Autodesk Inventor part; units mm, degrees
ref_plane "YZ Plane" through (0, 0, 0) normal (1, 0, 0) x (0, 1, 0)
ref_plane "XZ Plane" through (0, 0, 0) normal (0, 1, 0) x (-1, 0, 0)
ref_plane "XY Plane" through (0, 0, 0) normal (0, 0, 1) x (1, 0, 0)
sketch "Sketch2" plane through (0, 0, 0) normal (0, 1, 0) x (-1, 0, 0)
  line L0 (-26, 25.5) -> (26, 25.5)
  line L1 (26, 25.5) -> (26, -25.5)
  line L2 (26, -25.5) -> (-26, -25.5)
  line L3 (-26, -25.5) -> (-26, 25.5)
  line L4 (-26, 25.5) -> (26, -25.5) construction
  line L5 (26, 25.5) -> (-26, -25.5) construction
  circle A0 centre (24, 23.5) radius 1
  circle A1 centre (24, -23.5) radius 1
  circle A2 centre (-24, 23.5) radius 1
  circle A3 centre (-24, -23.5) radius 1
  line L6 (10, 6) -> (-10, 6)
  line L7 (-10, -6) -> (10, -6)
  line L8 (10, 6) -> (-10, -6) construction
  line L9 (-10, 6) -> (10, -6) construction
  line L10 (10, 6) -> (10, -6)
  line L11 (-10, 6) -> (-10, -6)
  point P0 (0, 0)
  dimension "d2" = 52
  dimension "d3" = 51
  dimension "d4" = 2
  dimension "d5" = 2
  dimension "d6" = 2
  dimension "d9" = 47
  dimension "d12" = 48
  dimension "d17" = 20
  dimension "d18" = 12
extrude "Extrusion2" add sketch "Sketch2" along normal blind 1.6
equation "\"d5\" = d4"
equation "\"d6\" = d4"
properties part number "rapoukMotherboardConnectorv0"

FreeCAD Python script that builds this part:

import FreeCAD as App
import Part
import Sketcher
Q = App.Units.Quantity

doc = App.newDocument("Part")
body = doc.addObject("PartDesign::Body", "Body")

# Sketch on XZ plane
sketch1 = body.newObject("Sketcher::SketchObject", "Sketch")
sketch1.AttachmentSupport = (doc.getObject("XZ_Plane"), [""])
sketch1.MapMode = "FlatFace"
sketch1.addGeometry(Part.LineSegment(App.Vector(-26, 25.5, 0), App.Vector(26, 25.5, 0)), False)
sketch1.addGeometry(Part.LineSegment(App.Vector(26, 25.5, 0), App.Vector(26, -25.5, 0)), False)
sketch1.addGeometry(Part.LineSegment(App.Vector(26, -25.5, 0), App.Vector(-26, -25.5, 0)), False)
sketch1.addGeometry(Part.LineSegment(App.Vector(-26, -25.5, 0), App.Vector(-26, 25.5, 0)), False)
sketch1.addGeometry(Part.Circle(App.Vector(24, -23.5, 0), App.Vector(0, 0, 1), 1), False)
sketch1.addGeometry(Part.Circle(App.Vector(-24, -23.5, 0), App.Vector(0, 0, 1), 1), False)
sketch1.addGeometry(Part.Circle(App.Vector(24, 23.5, 0), App.Vector(0, 0, 1), 1), False)
sketch1.addGeometry(Part.LineSegment(App.Vector(10, 6, 0), App.Vector(-10, 6, 0)), False)
sketch1.addGeometry(Part.LineSegment(App.Vector(-10, 6, 0), App.Vector(-10, -6, 0)), False)
sketch1.addGeometry(Part.LineSegment(App.Vector(-10, -6, 0), App.Vector(10, -6, 0)), False)
sketch1.addGeometry(Part.LineSegment(App.Vector(10, -6, 0), App.Vector(10, 6, 0)), False)
sketch1.addGeometry(Part.Circle(App.Vector(-24, 23.5, 0), App.Vector(0, 0, 1), 1), False)
sketch1.addConstraint(Sketcher.Constraint("Coincident", 0, 2, 1, 1))
sketch1.addConstraint(Sketcher.Constraint("Coincident", 1, 2, 2, 1))
sketch1.addConstraint(Sketcher.Constraint("Coincident", 2, 2, 3, 1))
sketch1.addConstraint(Sketcher.Constraint("Coincident", 3, 2, 0, 1))
sketch1.addConstraint(Sketcher.Constraint("Coincident", 7, 2, 8, 1))
sketch1.addConstraint(Sketcher.Constraint("Coincident", 8, 2, 9, 1))
sketch1.addConstraint(Sketcher.Constraint("Coincident", 9, 2, 10, 1))
sketch1.addConstraint(Sketcher.Constraint("Coincident", 10, 2, 7, 1))
sketch1.addConstraint(Sketcher.Constraint("Horizontal", 0))
sketch1.addConstraint(Sketcher.Constraint("Vertical", 1))
sketch1.addConstraint(Sketcher.Constraint("Horizontal", 2))
sketch1.addConstraint(Sketcher.Constraint("Vertical", 3))
sketch1.addConstraint(Sketcher.Constraint("Horizontal", 7))
sketch1.addConstraint(Sketcher.Constraint("Vertical", 8))
sketch1.addConstraint(Sketcher.Constraint("Horizontal", 9))
sketch1.addConstraint(Sketcher.Constraint("Vertical", 10))
sketch1.addConstraint(Sketcher.Constraint("Equal", 4, 5))
sketch1.addConstraint(Sketcher.Constraint("Equal", 5, 6))
sketch1.addConstraint(Sketcher.Constraint("Equal", 6, 11))
sketch1.addConstraint(Sketcher.Constraint("Symmetric", 5, 3, 6, 3, -1, 1))
sketch1.addConstraint(Sketcher.Constraint("Symmetric", 4, 3, 11, 3, -1, 1))
sketch1.addConstraint(Sketcher.Constraint("Symmetric", 0, 2, 2, 2, -1, 1))
sketch1.addConstraint(Sketcher.Constraint("Symmetric", 7, 2, 9, 2, -1, 1))
sketch1.addConstraint(Sketcher.Constraint("Symmetric", 4, 3, 5, 3, -2))
sketch1.addConstraint(Sketcher.Constraint("Diameter", 4, Q("2 mm")))
sketch1.addConstraint(Sketcher.Constraint("DistanceX", 0, 1, 0, 2, Q("52 mm")))
sketch1.addConstraint(Sketcher.Constraint("DistanceX", 7, 2, 7, 1, Q("20 mm")))
sketch1.addConstraint(Sketcher.Constraint("DistanceY", 1, 2, 1, 1, Q("51 mm")))
sketch1.addConstraint(Sketcher.Constraint("DistanceY", 8, 2, 8, 1, Q("12 mm")))
sketch1.addConstraint(Sketcher.Constraint("DistanceX", 5, 3, 4, 3, Q("48 mm")))
sketch1.addConstraint(Sketcher.Constraint("DistanceY", 4, 3, 6, 3, Q("47 mm")))
pad1 = body.newObject("PartDesign::Pad", "Pad")
pad1.Profile = sketch1
pad1.Length = 1.6
pad1.Reversed = True

doc.recompute()
